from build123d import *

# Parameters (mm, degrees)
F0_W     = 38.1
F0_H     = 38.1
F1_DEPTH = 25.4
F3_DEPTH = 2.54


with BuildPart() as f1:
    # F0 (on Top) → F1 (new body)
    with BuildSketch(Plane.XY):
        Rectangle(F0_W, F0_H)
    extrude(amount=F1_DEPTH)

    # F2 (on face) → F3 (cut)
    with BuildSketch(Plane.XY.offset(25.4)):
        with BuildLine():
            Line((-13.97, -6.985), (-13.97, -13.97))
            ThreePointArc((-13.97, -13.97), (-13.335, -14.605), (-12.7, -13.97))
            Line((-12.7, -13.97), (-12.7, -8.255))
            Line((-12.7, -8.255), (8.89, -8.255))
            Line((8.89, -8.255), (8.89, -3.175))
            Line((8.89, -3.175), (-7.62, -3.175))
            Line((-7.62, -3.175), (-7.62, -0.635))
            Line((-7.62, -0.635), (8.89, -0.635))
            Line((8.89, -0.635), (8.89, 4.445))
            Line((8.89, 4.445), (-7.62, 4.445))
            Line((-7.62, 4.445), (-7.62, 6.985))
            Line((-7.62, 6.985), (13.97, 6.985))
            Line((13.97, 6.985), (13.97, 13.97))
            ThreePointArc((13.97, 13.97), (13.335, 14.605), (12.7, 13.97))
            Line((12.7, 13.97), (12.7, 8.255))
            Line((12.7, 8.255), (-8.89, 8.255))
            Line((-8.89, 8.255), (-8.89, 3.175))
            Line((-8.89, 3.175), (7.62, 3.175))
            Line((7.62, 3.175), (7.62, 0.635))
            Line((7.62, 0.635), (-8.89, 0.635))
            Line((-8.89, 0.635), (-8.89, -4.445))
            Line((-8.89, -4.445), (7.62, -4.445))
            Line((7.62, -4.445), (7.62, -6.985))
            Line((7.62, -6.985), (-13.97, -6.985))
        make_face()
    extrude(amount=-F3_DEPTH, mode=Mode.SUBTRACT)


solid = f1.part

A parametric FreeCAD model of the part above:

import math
import FreeCAD as App
import Part
import Sketcher

V = App.Vector
Q = App.Units.Quantity


def add_polygon(sketch, points):
    """Adds a closed chain of lines whose ends are joined by coincident constraints."""
    first, n = sketch.GeometryCount, len(points)
    for a, b in zip(points, points[1:] + points[:1]):
        sketch.addGeometry(Part.LineSegment(App.Vector(*a, 0), App.Vector(*b, 0)), False)
    for i in range(n):
        sketch.addConstraint(Sketcher.Constraint("Coincident", first + i, 2, first + (i + 1) % n, 1))

doc = App.newDocument("Part")
body = doc.addObject("PartDesign::Body", "Body")

sketch1 = body.newObject("Sketcher::SketchObject", "Sketch")
sketch1.AttachmentSupport = (doc.getObject("XY_Plane"), [""])
sketch1.MapMode = "FlatFace"
add_polygon(sketch1, [(-19.05, 19.05), (-19.05, -19.05), (19.05, -19.05), (19.05, 19.05)])
sketch1.addConstraint(Sketcher.Constraint("Vertical", 0))
sketch1.addConstraint(Sketcher.Constraint("Horizontal", 1))
sketch1.addConstraint(Sketcher.Constraint("Vertical", 2))
sketch1.addConstraint(Sketcher.Constraint("Horizontal", 3))
sketch1.addConstraint(Sketcher.Constraint("Symmetric", 0, 2, 2, 2, -1, 1))
sketch1.addConstraint(Sketcher.Constraint("Equal", 3, 0))
sketch1.addConstraint(Sketcher.Constraint("DistanceX", 1, 1, 1, 2, Q("1.5 in")))
pad1 = body.newObject("PartDesign::Pad", "Pad")
pad1.Profile = sketch1
pad1.Length = Q("1 in")

sketch2 = body.newObject("Sketcher::SketchObject", "Sketch001")
sketch2.AttachmentSupport = (doc.getObject("XY_Plane"), [""])
sketch2.MapMode = "FlatFace"
sketch2.AttachmentOffset = App.Placement(V(0, 0, 1 * 25.4), App.Rotation())
sketch2.addGeometry(Part.LineSegment(V(-13.97, -6.985, 0), V(-13.97, -13.97, 0)), False)
sketch2.addGeometry(Part.ArcOfCircle(Part.Circle(V(-13.335, -13.97, 0), V(0, 0, 1), 0.635), math.radians(180), math.radians(360)), False)
sketch2.addGeometry(Part.LineSegment(V(-12.7, -13.97, 0), V(-12.7, -8.255, 0)), False)
sketch2.addGeometry(Part.LineSegment(V(-12.7, -8.255, 0), V(8.89, -8.255, 0)), False)
sketch2.addGeometry(Part.LineSegment(V(8.89, -8.255, 0), V(8.89, -3.175, 0)), False)
sketch2.addGeometry(Part.LineSegment(V(8.89, -3.175, 0), V(-7.62, -3.175, 0)), False)
sketch2.addGeometry(Part.LineSegment(V(-7.62, -3.175, 0), V(-7.62, -0.635, 0)), False)
sketch2.addGeometry(Part.LineSegment(V(-7.62, -0.635, 0), V(8.89, -0.635, 0)), False)
sketch2.addGeometry(Part.LineSegment(V(8.89, -0.635, 0), V(8.89, 4.445, 0)), False)
sketch2.addGeometry(Part.LineSegment(V(8.89, 4.445, 0), V(-7.62, 4.445, 0)), False)
sketch2.addGeometry(Part.LineSegment(V(-7.62, 4.445, 0), V(-7.62, 6.985, 0)), False)
sketch2.addGeometry(Part.LineSegment(V(-7.62, 6.985, 0), V(13.97, 6.985, 0)), False)
sketch2.addGeometry(Part.LineSegment(V(13.97, 6.985, 0), V(13.97, 13.97, 0)), False)
sketch2.addGeometry(Part.ArcOfCircle(Part.Circle(V(13.335, 13.97, 0), V(0, 0, 1), 0.635), math.radians(0), math.radians(180)), False)
sketch2.addGeometry(Part.LineSegment(V(12.7, 13.97, 0), V(12.7, 8.255, 0)), False)
sketch2.addGeometry(Part.LineSegment(V(12.7, 8.255, 0), V(-8.89, 8.255, 0)), False)
sketch2.addGeometry(Part.LineSegment(V(-8.89, 8.255, 0), V(-8.89, 3.175, 0)), False)
sketch2.addGeometry(Part.LineSegment(V(-8.89, 3.175, 0), V(7.62, 3.175, 0)), False)
sketch2.addGeometry(Part.LineSegment(V(7.62, 3.175, 0), V(7.62, 0.635, 0)), False)
sketch2.addGeometry(Part.LineSegment(V(7.62, 0.635, 0), V(-8.89, 0.635, 0)), False)
sketch2.addGeometry(Part.LineSegment(V(-8.89, 0.635, 0), V(-8.89, -4.445, 0)), False)
sketch2.addGeometry(Part.LineSegment(V(-8.89, -4.445, 0), V(7.62, -4.445, 0)), False)
sketch2.addGeometry(Part.LineSegment(V(7.62, -4.445, 0), V(7.62, -6.985, 0)), False)
sketch2.addGeometry(Part.LineSegment(V(7.62, -6.985, 0), V(-13.97, -6.985, 0)), False)
sketch2.addConstraint(Sketcher.Constraint("Tangent", 0, 2, 1, 1))
sketch2.addConstraint(Sketcher.Constraint("Tangent", 1, 2, 2, 1))
sketch2.addConstraint(Sketcher.Constraint("Coincident", 2, 2, 3, 1))
sketch2.addConstraint(Sketcher.Constraint("Coincident", 3, 2, 4, 1))
sketch2.addConstraint(Sketcher.Constraint("Coincident", 4, 2, 5, 1))
sketch2.addConstraint(Sketcher.Constraint("Coincident", 5, 2, 6, 1))
sketch2.addConstraint(Sketcher.Constraint("Coincident", 6, 2, 7, 1))
sketch2.addConstraint(Sketcher.Constraint("Coincident", 7, 2, 8, 1))
sketch2.addConstraint(Sketcher.Constraint("Coincident", 8, 2, 9, 1))
sketch2.addConstraint(Sketcher.Constraint("Coincident", 9, 2, 10, 1))
sketch2.addConstraint(Sketcher.Constraint("Coincident", 10, 2, 11, 1))
sketch2.addConstraint(Sketcher.Constraint("Coincident", 11, 2, 12, 1))
sketch2.addConstraint(Sketcher.Constraint("Tangent", 12, 2, 13, 1))
sketch2.addConstraint(Sketcher.Constraint("Tangent", 13, 2, 14, 1))
sketch2.addConstraint(Sketcher.Constraint("Coincident", 14, 2, 15, 1))
sketch2.addConstraint(Sketcher.Constraint("Coincident", 15, 2, 16, 1))
sketch2.addConstraint(Sketcher.Constraint("Coincident", 16, 2, 17, 1))
sketch2.addConstraint(Sketcher.Constraint("Coincident", 17, 2, 18, 1))
sketch2.addConstraint(Sketcher.Constraint("Coincident", 18, 2, 19, 1))
sketch2.addConstraint(Sketcher.Constraint("Coincident", 19, 2, 20, 1))
sketch2.addConstraint(Sketcher.Constraint("Coincident", 20, 2, 21, 1))
sketch2.addConstraint(Sketcher.Constraint("Coincident", 21, 2, 22, 1))
sketch2.addConstraint(Sketcher.Constraint("Coincident", 22, 2, 23, 1))
sketch2.addConstraint(Sketcher.Constraint("Coincident", 23, 2, 0, 1))
sketch2.addConstraint(Sketcher.Constraint("Vertical", 0))
sketch2.addConstraint(Sketcher.Constraint("Vertical", 2))
sketch2.addConstraint(Sketcher.Constraint("Horizontal", 3))
sketch2.addConstraint(Sketcher.Constraint("Vertical", 4))
sketch2.addConstraint(Sketcher.Constraint("Horizontal", 5))
sketch2.addConstraint(Sketcher.Constraint("Vertical", 6))
sketch2.addConstraint(Sketcher.Constraint("Horizontal", 7))
sketch2.addConstraint(Sketcher.Constraint("Vertical", 8))
sketch2.addConstraint(Sketcher.Constraint("Horizontal", 9))
sketch2.addConstraint(Sketcher.Constraint("Vertical", 10))
sketch2.addConstraint(Sketcher.Constraint("Horizontal", 11))
sketch2.addConstraint(Sketcher.Constraint("Vertical", 12))
sketch2.addConstraint(Sketcher.Constraint("Vertical", 14))
sketch2.addConstraint(Sketcher.Constraint("Horizontal", 15))
sketch2.addConstraint(Sketcher.Constraint("Vertical", 16))
sketch2.addConstraint(Sketcher.Constraint("Horizontal", 17))
sketch2.addConstraint(Sketcher.Constraint("Vertical", 18))
sketch2.addConstraint(Sketcher.Constraint("Horizontal", 19))
sketch2.addConstraint(Sketcher.Constraint("Vertical", 20))
sketch2.addConstraint(Sketcher.Constraint("Horizontal", 21))
sketch2.addConstraint(Sketcher.Constraint("Vertical", 22))
sketch2.addConstraint(Sketcher.Constraint("Horizontal", 23))
sketch2.addConstraint(Sketcher.Constraint("Equal", 1, 13))
sketch2.addConstraint(Sketcher.Constraint("Symmetric", 1, 3, 13, 3, -1, 1))
sketch2.addConstraint(Sketcher.Constraint("Symmetric", 3, 2, 15, 2, -1, 1))
sketch2.addConstraint(Sketcher.Constraint("Symmetric", 5, 2, 17, 2, -1, 1))
sketch2.addConstraint(Sketcher.Constraint("Symmetric", 7, 2, 19, 2, -1, 1))
sketch2.addConstraint(Sketcher.Constraint("Symmetric", 9, 2, 21, 2, -1, 1))
sketch2.addConstraint(Sketcher.Constraint("Vertical", 4, 2, 7, 2))
sketch2.addConstraint(Sketcher.Constraint("Vertical", 6, 2, 9, 2))
sketch2.addConstraint(Sketcher.Constraint("Equal", 3, 11))
sketch2.addConstraint(Sketcher.Constraint("Equal", 4, 8))
sketch2.addConstraint(Sketcher.Constraint("Equal", 6, 10))
sketch2.addConstraint(Sketcher.Constraint("Equal", 0, 12))
sketch2.addConstraint(Sketcher.Constraint("DistanceY", 4, 1, 4, 2, Q("0.2 in")))
sketch2.addConstraint(Sketcher.Constraint("DistanceY", 6, 1, 6, 2, Q("0.1 in")))
sketch2.addConstraint(Sketcher.Constraint("Radius", 1, Q("0.025 in")))
sketch2.addConstraint(Sketcher.Constraint("DistanceX", 3, 1, 3, 2, Q("0.85 in")))
sketch2.addConstraint(Sketcher.Constraint("DistanceX", 5, 2, 5, 1, Q("0.65 in")))
sketch2.addConstraint(Sketcher.Constraint("DistanceY", 1, 3, 13, 3, Q("1.1 in")))
sketch2.addConstraint(Sketcher.Constraint("DistanceY", 0, 2, 0, 1, Q("0.275 in")))
pocket1 = body.newObject("PartDesign::Pocket", "Pocket")
pocket1.Profile = sketch2
pocket1.Length = Q("0.1 in")

doc.recompute()
